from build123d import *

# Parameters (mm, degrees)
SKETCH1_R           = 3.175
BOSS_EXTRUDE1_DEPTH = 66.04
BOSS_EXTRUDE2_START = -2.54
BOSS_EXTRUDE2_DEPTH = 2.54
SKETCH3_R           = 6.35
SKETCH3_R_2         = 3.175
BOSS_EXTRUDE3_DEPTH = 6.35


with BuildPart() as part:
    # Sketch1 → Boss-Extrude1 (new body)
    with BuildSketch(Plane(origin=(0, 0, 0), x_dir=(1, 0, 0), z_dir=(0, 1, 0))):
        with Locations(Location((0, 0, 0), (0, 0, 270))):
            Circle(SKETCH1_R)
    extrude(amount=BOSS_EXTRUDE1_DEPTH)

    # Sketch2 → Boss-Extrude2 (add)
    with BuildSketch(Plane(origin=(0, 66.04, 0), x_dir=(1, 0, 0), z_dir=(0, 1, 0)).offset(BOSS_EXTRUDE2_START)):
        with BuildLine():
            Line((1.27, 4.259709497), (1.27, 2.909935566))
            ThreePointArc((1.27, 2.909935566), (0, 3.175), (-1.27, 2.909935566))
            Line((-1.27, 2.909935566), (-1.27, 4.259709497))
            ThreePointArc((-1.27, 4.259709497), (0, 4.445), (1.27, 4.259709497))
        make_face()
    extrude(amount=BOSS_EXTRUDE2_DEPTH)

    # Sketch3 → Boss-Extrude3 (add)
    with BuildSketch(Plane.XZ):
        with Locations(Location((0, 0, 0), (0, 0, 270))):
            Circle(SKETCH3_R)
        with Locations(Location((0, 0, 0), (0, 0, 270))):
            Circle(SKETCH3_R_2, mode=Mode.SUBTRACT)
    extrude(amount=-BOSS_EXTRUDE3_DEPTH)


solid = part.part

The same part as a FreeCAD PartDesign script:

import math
import FreeCAD as App
import Part
import Sketcher
Q = App.Units.Quantity

doc = App.newDocument("Part")
body = doc.addObject("PartDesign::Body", "Body")

# Sketch on XZ plane
sketch1 = doc.addObject("Sketcher::SketchObject", "Sketch")
body.addObject(sketch1)
sketch1.AttachmentSupport = (doc.XZ_Plane, [""])
sketch1.MapMode = "FlatFace"
sketch1.addGeometry(Part.Circle(App.Vector(0, 0, 0), App.Vector(0, 0, 1), 3.2), False)
sketch1.addConstraint([
    Sketcher.Constraint("Coincident", 0, 3, -1, 1),
    Sketcher.Constraint("Diameter", 0, Q("0.25 in")),
])
pad1 = doc.addObject("PartDesign::Pad", "Pad")
body.addObject(pad1)
pad1.Profile = sketch1
pad1.Length = Q("2.6 in")
pad1.Reversed = True

# Sketch on XZ plane
sketch2 = doc.addObject("Sketcher::SketchObject", "Sketch001")
body.addObject(sketch2)
sketch2.AttachmentSupport = (doc.XZ_Plane, [""])
sketch2.MapMode = "FlatFace"
sketch2.AttachmentOffset = App.Placement(App.Vector(0, 0, -2.5 * 25.4), App.Rotation())
sketch2.addGeometry([
    Part.LineSegment(App.Vector(1.3, -2.9, 0), App.Vector(1.3, -4.3, 0)),
    Part.ArcOfCircle(Part.Circle(App.Vector(0, 0, 0), App.Vector(0, 0, 1), 4.4), math.radians(-107), math.radians(-73)),
    Part.LineSegment(App.Vector(-1.3, -4.3, 0), App.Vector(-1.3, -2.9, 0)),
    Part.ArcOfCircle(Part.Circle(App.Vector(0, 0, 0), App.Vector(0, 0, 1), 3.2), math.radians(-114), math.radians(-66)),
], False)
sketch2.addConstraint([
    Sketcher.Constraint("Coincident", 0, 2, 1, 2),
    Sketcher.Constraint("Coincident", 1, 1, 2, 1),
    Sketcher.Constraint("Coincident", 2, 2, 3, 1),
    Sketcher.Constraint("Coincident", 3, 2, 0, 1),
    Sketcher.Constraint("Vertical", 0),
    Sketcher.Constraint("Vertical", 2),
    Sketcher.Constraint("Coincident", 1, 3, -1, 1),
    Sketcher.Constraint("Coincident", 3, 3, -1, 1),
    Sketcher.Constraint("Horizontal", 0, 2, 1, 1),
    Sketcher.Constraint("Radius", 1, Q("0.175 in")),
    Sketcher.Constraint("Radius", 3, Q("0.125 in")),
    Sketcher.Constraint("DistanceX", 1, 1, 0, 2, Q("0.1 in")),
])
pad2 = doc.addObject("PartDesign::Pad", "Pad001")
body.addObject(pad2)
pad2.Profile = sketch2
pad2.Length = Q("0.1 in")
pad2.Reversed = True

# Sketch on XZ plane
sketch3 = doc.addObject("Sketcher::SketchObject", "Sketch002")
body.addObject(sketch3)
sketch3.AttachmentSupport = (doc.XZ_Plane, [""])
sketch3.MapMode = "FlatFace"
sketch3.addGeometry([
    Part.Circle(App.Vector(0, 0, 0), App.Vector(0, 0, 1), 6.3),
    Part.Circle(App.Vector(0, 0, 0), App.Vector(0, 0, 1), 3.2),
], False)
sketch3.addConstraint([
    Sketcher.Constraint("Coincident", 0, 3, -1, 1),
    Sketcher.Constraint("Coincident", 1, 3, -1, 1),
    Sketcher.Constraint("Diameter", 0, Q("0.5 in")),
    Sketcher.Constraint("Diameter", 1, Q("0.25 in")),
])
pad3 = doc.addObject("PartDesign::Pad", "Pad002")
body.addObject(pad3)
pad3.Profile = sketch3
pad3.Length = Q("0.25 in")
pad3.Reversed = True

doc.recompute()
